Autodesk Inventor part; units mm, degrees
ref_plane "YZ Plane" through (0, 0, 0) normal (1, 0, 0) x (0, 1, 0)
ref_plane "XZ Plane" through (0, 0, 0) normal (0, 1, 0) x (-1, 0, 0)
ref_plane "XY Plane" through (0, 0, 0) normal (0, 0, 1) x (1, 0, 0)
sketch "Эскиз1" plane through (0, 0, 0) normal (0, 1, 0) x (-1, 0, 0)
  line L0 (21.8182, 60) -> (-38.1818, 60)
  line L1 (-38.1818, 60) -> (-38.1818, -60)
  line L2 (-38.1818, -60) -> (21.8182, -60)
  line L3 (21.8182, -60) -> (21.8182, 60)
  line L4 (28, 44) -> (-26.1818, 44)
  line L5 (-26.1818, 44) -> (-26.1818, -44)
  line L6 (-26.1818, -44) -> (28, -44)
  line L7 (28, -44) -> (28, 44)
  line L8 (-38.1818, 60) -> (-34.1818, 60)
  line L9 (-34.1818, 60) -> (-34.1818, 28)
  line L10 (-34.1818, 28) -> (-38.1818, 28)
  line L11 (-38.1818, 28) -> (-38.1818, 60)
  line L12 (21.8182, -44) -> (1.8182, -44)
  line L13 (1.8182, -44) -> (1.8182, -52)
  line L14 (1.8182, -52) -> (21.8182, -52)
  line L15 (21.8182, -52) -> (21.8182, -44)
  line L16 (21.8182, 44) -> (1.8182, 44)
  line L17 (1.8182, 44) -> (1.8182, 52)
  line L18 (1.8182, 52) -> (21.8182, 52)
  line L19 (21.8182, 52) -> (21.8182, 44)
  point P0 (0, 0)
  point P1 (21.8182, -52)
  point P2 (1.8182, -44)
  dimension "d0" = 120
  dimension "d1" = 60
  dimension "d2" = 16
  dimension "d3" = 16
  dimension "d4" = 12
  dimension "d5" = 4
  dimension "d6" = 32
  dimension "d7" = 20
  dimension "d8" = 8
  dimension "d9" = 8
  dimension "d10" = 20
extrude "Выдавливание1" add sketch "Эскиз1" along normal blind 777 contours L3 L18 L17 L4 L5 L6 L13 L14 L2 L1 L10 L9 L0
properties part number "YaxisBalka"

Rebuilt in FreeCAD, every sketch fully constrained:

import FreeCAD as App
import Part
import Sketcher
Q = App.Units.Quantity

doc = App.newDocument("Part")
body = doc.addObject("PartDesign::Body", "Body")

# Sketch on XZ plane
sketch1 = body.newObject("Sketcher::SketchObject", "Sketch")
sketch1.AttachmentSupport = (doc.getObject("XZ_Plane"), [""])
sketch1.MapMode = "FlatFace"
sketch1.addGeometry(Part.LineSegment(App.Vector(-21.8, 52, 0), App.Vector(-21.8, 60, 0)), False)
sketch1.addGeometry(Part.LineSegment(App.Vector(-21.8, 60, 0), App.Vector(34.2, 60, 0)), False)
sketch1.addGeometry(Part.LineSegment(App.Vector(34.2, 60, 0), App.Vector(34.2, 28, 0)), False)
sketch1.addGeometry(Part.LineSegment(App.Vector(34.2, 28, 0), App.Vector(38.2, 28, 0)), False)
sketch1.addGeometry(Part.LineSegment(App.Vector(38.2, 28, 0), App.Vector(38.2, -60, 0)), False)
sketch1.addGeometry(Part.LineSegment(App.Vector(38.2, -60, 0), App.Vector(-21.8, -60, 0)), False)
sketch1.addGeometry(Part.LineSegment(App.Vector(-21.8, -60, 0), App.Vector(-21.8, -52, 0)), False)
sketch1.addGeometry(Part.LineSegment(App.Vector(-21.8, -52, 0), App.Vector(-1.8, -52, 0)), False)
sketch1.addGeometry(Part.LineSegment(App.Vector(-1.8, -52, 0), App.Vector(-1.8, -44, 0)), False)
sketch1.addGeometry(Part.LineSegment(App.Vector(-1.8, -44, 0), App.Vector(26.2, -44, 0)), False)
sketch1.addGeometry(Part.LineSegment(App.Vector(26.2, -44, 0), App.Vector(26.2, 44, 0)), False)
sketch1.addGeometry(Part.LineSegment(App.Vector(26.2, 44, 0), App.Vector(-1.8, 44, 0)), False)
sketch1.addGeometry(Part.LineSegment(App.Vector(-1.8, 44, 0), App.Vector(-1.8, 52, 0)), False)
sketch1.addGeometry(Part.LineSegment(App.Vector(-1.8, 52, 0), App.Vector(-21.8, 52, 0)), False)
sketch1.addConstraint(Sketcher.Constraint("Coincident", 0, 2, 1, 1))
sketch1.addConstraint(Sketcher.Constraint("Coincident", 1, 2, 2, 1))
sketch1.addConstraint(Sketcher.Constraint("Coincident", 2, 2, 3, 1))
sketch1.addConstraint(Sketcher.Constraint("Coincident", 3, 2, 4, 1))
sketch1.addConstraint(Sketcher.Constraint("Coincident", 4, 2, 5, 1))
sketch1.addConstraint(Sketcher.Constraint("Coincident", 5, 2, 6, 1))
sketch1.addConstraint(Sketcher.Constraint("Coincident", 6, 2, 7, 1))
sketch1.addConstraint(Sketcher.Constraint("Coincident", 7, 2, 8, 1))
sketch1.addConstraint(Sketcher.Constraint("Coincident", 8, 2, 9, 1))
sketch1.addConstraint(Sketcher.Constraint("Coincident", 9, 2, 10, 1))
sketch1.addConstraint(Sketcher.Constraint("Coincident", 10, 2, 11, 1))
sketch1.addConstraint(Sketcher.Constraint("Coincident", 11, 2, 12, 1))
sketch1.addConstraint(Sketcher.Constraint("Coincident", 12, 2, 13, 1))
sketch1.addConstraint(Sketcher.Constraint("Coincident", 13, 2, 0, 1))
sketch1.addConstraint(Sketcher.Constraint("Vertical", 0))
sketch1.addConstraint(Sketcher.Constraint("Horizontal", 1))
sketch1.addConstraint(Sketcher.Constraint("Vertical", 2))
sketch1.addConstraint(Sketcher.Constraint("Horizontal", 3))
sketch1.addConstraint(Sketcher.Constraint("Vertical", 4))
sketch1.addConstraint(Sketcher.Constraint("Horizontal", 5))
sketch1.addConstraint(Sketcher.Constraint("Vertical", 6))
sketch1.addConstraint(Sketcher.Constraint("Horizontal", 7))
sketch1.addConstraint(Sketcher.Constraint("Vertical", 8))
sketch1.addConstraint(Sketcher.Constraint("Horizontal", 9))
sketch1.addConstraint(Sketcher.Constraint("Vertical", 10))
sketch1.addConstraint(Sketcher.Constraint("Horizontal", 11))
sketch1.addConstraint(Sketcher.Constraint("Vertical", 12))
sketch1.addConstraint(Sketcher.Constraint("Horizontal", 13))
sketch1.addConstraint(Sketcher.Constraint("Symmetric", 0, 2, 5, 2, -1))
sketch1.addConstraint(Sketcher.Constraint("Symmetric", 8, 2, 11, 2, -1))
sketch1.addConstraint(Sketcher.Constraint("Equal", 0, 6))
sketch1.addConstraint(Sketcher.Constraint("Equal", 6, 8))
sketch1.addConstraint(Sketcher.Constraint("Equal", 4, 10))
sketch1.addConstraint(Sketcher.Constraint("DistanceX", 3, 1, 3, 2, Q("4 mm")))
sketch1.addConstraint(Sketcher.Constraint("DistanceX", 5, 2, 5, 1, Q("60 mm")))
sketch1.addConstraint(Sketcher.Constraint("DistanceX", 7, 1, 7, 2, Q("20 mm")))
sketch1.addConstraint(Sketcher.Constraint("DistanceY", 0, 1, 0, 2, Q("8 mm")))
sketch1.addConstraint(Sketcher.Constraint("DistanceY", -1, 1, 0, 2, Q("60 mm")))
sketch1.addConstraint(Sketcher.Constraint("DistanceX", 9, 2, 4, 2, Q("12 mm")))
sketch1.addConstraint(Sketcher.Constraint("DistanceX", 0, 2, -1, 1, Q("21.8182 mm")))
pad1 = body.newObject("PartDesign::Pad", "Pad")
pad1.Profile = sketch1
pad1.Length = 777
pad1.Reversed = True

doc.recompute()
